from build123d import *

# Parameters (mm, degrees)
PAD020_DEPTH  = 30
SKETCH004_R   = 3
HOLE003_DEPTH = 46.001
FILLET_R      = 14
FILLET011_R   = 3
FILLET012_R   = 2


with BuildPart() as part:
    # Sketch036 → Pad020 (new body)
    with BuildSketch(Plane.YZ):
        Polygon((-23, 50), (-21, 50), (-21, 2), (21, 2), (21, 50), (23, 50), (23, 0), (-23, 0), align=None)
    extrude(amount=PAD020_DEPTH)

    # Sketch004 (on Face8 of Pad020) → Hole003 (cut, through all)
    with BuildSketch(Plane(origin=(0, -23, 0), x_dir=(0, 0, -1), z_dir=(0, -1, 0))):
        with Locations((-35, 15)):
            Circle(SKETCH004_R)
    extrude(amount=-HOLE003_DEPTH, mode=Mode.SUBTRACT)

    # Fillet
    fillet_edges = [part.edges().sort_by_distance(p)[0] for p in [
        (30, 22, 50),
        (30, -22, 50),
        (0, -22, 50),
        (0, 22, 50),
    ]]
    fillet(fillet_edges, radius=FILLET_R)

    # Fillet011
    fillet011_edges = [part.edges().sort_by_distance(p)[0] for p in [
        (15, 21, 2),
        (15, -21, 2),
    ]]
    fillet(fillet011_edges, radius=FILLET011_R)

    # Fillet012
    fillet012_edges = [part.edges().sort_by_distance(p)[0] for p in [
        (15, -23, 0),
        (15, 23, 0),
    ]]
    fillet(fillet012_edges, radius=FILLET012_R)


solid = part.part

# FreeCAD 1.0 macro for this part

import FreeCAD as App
import Part
import Sketcher
Q = App.Units.Quantity


def edges_at(feature, points):
    """Names of the edges that pass closest to the given points."""
    edges = feature.Shape.Edges
    near = lambda p: min(range(len(edges)), key=lambda i: edges[i].distToShape(Part.Vertex(*p))[0])
    return sorted({f"Edge{near(p) + 1}" for p in points})


def add_polygon(sketch, points):
    """Adds a closed chain of lines whose ends are joined by coincident constraints."""
    first, n = sketch.GeometryCount, len(points)
    for a, b in zip(points, points[1:] + points[:1]):
        sketch.addGeometry(Part.LineSegment(App.Vector(*a, 0), App.Vector(*b, 0)), False)
    for i in range(n):
        sketch.addConstraint(Sketcher.Constraint("Coincident", first + i, 2, first + (i + 1) % n, 1))

doc = App.newDocument("Part")
body = doc.addObject("PartDesign::Body", "Body")

# Sketch on YZ plane
sketch1 = body.newObject("Sketcher::SketchObject", "Sketch")
sketch1.AttachmentSupport = (doc.getObject("YZ_Plane"), [""])
sketch1.MapMode = "FlatFace"
add_polygon(sketch1, [(-21, 50), (-23, 50), (-23, 0), (23, 0), (23, 50), (21, 50), (21, 2), (-21, 2)])  # lines 0-7
sketch1.addConstraint([
    Sketcher.Constraint("Horizontal", 0),
    Sketcher.Constraint("Vertical", 1),
    Sketcher.Constraint("Horizontal", 2),
    Sketcher.Constraint("Vertical", 3),
    Sketcher.Constraint("Horizontal", 4),
    Sketcher.Constraint("Vertical", 5),
    Sketcher.Constraint("Horizontal", 6),
    Sketcher.Constraint("Vertical", 7),
    Sketcher.Constraint("Symmetric", 1, 2, 2, 2, -1, 1),
    Sketcher.Constraint("Symmetric", 4, 2, 7, 2, -2),
    Sketcher.Constraint("DistanceX", 0, 2, 0, 1, Q("2 mm")),
    Sketcher.Constraint("DistanceX", 2, 1, 2, 2, Q("46 mm")),
    Sketcher.Constraint("DistanceY", 1, 2, 1, 1, Q("50 mm")),
    Sketcher.Constraint("DistanceY", 5, 2, 5, 1, Q("48 mm")),
])
pad1 = body.newObject("PartDesign::Pad", "Pad")
pad1.Profile = sketch1
pad1.Length = 30

# Sketch on XZ plane
sketch2 = body.newObject("Sketcher::SketchObject", "Sketch001")
sketch2.AttachmentSupport = (doc.getObject("XZ_Plane"), [""])
sketch2.MapMode = "FlatFace"
sketch2.AttachmentOffset = App.Placement(App.Vector(0, 0, 23), App.Rotation())
sketch2.addGeometry(Part.Circle(App.Vector(15, 35, 0), App.Vector(0, 0, 1), 3), False)
sketch2.addConstraint([
    Sketcher.Constraint("Diameter", 0, Q("6 mm")),
    Sketcher.Constraint("DistanceX", -1, 1, 0, 3, Q("15 mm")),
    Sketcher.Constraint("DistanceY", -1, 1, 0, 3, Q("35 mm")),
])
pocket1 = body.newObject("PartDesign::Pocket", "Pocket")
pocket1.Profile = sketch2
pocket1.Type = "ThroughAll"
doc.recompute()

fillet = body.newObject("PartDesign::Fillet", "Fillet")
fillet.Base = (pocket1, edges_at(pocket1, [
    (30, 22, 50),
    (30, -22, 50),
    (0, -22, 50),
    (0, 22, 50),
]))
fillet.Radius = 14
doc.recompute()

fillet2 = body.newObject("PartDesign::Fillet", "Fillet001")
fillet2.Base = (fillet, edges_at(fillet, [(15, 21, 2), (15, -21, 2)]))
fillet2.Radius = 3
doc.recompute()

fillet3 = body.newObject("PartDesign::Fillet", "Fillet002")
fillet3.Base = (fillet2, edges_at(fillet2, [(15, -23, 0), (15, 23, 0)]))
fillet3.Radius = 2

doc.recompute()
